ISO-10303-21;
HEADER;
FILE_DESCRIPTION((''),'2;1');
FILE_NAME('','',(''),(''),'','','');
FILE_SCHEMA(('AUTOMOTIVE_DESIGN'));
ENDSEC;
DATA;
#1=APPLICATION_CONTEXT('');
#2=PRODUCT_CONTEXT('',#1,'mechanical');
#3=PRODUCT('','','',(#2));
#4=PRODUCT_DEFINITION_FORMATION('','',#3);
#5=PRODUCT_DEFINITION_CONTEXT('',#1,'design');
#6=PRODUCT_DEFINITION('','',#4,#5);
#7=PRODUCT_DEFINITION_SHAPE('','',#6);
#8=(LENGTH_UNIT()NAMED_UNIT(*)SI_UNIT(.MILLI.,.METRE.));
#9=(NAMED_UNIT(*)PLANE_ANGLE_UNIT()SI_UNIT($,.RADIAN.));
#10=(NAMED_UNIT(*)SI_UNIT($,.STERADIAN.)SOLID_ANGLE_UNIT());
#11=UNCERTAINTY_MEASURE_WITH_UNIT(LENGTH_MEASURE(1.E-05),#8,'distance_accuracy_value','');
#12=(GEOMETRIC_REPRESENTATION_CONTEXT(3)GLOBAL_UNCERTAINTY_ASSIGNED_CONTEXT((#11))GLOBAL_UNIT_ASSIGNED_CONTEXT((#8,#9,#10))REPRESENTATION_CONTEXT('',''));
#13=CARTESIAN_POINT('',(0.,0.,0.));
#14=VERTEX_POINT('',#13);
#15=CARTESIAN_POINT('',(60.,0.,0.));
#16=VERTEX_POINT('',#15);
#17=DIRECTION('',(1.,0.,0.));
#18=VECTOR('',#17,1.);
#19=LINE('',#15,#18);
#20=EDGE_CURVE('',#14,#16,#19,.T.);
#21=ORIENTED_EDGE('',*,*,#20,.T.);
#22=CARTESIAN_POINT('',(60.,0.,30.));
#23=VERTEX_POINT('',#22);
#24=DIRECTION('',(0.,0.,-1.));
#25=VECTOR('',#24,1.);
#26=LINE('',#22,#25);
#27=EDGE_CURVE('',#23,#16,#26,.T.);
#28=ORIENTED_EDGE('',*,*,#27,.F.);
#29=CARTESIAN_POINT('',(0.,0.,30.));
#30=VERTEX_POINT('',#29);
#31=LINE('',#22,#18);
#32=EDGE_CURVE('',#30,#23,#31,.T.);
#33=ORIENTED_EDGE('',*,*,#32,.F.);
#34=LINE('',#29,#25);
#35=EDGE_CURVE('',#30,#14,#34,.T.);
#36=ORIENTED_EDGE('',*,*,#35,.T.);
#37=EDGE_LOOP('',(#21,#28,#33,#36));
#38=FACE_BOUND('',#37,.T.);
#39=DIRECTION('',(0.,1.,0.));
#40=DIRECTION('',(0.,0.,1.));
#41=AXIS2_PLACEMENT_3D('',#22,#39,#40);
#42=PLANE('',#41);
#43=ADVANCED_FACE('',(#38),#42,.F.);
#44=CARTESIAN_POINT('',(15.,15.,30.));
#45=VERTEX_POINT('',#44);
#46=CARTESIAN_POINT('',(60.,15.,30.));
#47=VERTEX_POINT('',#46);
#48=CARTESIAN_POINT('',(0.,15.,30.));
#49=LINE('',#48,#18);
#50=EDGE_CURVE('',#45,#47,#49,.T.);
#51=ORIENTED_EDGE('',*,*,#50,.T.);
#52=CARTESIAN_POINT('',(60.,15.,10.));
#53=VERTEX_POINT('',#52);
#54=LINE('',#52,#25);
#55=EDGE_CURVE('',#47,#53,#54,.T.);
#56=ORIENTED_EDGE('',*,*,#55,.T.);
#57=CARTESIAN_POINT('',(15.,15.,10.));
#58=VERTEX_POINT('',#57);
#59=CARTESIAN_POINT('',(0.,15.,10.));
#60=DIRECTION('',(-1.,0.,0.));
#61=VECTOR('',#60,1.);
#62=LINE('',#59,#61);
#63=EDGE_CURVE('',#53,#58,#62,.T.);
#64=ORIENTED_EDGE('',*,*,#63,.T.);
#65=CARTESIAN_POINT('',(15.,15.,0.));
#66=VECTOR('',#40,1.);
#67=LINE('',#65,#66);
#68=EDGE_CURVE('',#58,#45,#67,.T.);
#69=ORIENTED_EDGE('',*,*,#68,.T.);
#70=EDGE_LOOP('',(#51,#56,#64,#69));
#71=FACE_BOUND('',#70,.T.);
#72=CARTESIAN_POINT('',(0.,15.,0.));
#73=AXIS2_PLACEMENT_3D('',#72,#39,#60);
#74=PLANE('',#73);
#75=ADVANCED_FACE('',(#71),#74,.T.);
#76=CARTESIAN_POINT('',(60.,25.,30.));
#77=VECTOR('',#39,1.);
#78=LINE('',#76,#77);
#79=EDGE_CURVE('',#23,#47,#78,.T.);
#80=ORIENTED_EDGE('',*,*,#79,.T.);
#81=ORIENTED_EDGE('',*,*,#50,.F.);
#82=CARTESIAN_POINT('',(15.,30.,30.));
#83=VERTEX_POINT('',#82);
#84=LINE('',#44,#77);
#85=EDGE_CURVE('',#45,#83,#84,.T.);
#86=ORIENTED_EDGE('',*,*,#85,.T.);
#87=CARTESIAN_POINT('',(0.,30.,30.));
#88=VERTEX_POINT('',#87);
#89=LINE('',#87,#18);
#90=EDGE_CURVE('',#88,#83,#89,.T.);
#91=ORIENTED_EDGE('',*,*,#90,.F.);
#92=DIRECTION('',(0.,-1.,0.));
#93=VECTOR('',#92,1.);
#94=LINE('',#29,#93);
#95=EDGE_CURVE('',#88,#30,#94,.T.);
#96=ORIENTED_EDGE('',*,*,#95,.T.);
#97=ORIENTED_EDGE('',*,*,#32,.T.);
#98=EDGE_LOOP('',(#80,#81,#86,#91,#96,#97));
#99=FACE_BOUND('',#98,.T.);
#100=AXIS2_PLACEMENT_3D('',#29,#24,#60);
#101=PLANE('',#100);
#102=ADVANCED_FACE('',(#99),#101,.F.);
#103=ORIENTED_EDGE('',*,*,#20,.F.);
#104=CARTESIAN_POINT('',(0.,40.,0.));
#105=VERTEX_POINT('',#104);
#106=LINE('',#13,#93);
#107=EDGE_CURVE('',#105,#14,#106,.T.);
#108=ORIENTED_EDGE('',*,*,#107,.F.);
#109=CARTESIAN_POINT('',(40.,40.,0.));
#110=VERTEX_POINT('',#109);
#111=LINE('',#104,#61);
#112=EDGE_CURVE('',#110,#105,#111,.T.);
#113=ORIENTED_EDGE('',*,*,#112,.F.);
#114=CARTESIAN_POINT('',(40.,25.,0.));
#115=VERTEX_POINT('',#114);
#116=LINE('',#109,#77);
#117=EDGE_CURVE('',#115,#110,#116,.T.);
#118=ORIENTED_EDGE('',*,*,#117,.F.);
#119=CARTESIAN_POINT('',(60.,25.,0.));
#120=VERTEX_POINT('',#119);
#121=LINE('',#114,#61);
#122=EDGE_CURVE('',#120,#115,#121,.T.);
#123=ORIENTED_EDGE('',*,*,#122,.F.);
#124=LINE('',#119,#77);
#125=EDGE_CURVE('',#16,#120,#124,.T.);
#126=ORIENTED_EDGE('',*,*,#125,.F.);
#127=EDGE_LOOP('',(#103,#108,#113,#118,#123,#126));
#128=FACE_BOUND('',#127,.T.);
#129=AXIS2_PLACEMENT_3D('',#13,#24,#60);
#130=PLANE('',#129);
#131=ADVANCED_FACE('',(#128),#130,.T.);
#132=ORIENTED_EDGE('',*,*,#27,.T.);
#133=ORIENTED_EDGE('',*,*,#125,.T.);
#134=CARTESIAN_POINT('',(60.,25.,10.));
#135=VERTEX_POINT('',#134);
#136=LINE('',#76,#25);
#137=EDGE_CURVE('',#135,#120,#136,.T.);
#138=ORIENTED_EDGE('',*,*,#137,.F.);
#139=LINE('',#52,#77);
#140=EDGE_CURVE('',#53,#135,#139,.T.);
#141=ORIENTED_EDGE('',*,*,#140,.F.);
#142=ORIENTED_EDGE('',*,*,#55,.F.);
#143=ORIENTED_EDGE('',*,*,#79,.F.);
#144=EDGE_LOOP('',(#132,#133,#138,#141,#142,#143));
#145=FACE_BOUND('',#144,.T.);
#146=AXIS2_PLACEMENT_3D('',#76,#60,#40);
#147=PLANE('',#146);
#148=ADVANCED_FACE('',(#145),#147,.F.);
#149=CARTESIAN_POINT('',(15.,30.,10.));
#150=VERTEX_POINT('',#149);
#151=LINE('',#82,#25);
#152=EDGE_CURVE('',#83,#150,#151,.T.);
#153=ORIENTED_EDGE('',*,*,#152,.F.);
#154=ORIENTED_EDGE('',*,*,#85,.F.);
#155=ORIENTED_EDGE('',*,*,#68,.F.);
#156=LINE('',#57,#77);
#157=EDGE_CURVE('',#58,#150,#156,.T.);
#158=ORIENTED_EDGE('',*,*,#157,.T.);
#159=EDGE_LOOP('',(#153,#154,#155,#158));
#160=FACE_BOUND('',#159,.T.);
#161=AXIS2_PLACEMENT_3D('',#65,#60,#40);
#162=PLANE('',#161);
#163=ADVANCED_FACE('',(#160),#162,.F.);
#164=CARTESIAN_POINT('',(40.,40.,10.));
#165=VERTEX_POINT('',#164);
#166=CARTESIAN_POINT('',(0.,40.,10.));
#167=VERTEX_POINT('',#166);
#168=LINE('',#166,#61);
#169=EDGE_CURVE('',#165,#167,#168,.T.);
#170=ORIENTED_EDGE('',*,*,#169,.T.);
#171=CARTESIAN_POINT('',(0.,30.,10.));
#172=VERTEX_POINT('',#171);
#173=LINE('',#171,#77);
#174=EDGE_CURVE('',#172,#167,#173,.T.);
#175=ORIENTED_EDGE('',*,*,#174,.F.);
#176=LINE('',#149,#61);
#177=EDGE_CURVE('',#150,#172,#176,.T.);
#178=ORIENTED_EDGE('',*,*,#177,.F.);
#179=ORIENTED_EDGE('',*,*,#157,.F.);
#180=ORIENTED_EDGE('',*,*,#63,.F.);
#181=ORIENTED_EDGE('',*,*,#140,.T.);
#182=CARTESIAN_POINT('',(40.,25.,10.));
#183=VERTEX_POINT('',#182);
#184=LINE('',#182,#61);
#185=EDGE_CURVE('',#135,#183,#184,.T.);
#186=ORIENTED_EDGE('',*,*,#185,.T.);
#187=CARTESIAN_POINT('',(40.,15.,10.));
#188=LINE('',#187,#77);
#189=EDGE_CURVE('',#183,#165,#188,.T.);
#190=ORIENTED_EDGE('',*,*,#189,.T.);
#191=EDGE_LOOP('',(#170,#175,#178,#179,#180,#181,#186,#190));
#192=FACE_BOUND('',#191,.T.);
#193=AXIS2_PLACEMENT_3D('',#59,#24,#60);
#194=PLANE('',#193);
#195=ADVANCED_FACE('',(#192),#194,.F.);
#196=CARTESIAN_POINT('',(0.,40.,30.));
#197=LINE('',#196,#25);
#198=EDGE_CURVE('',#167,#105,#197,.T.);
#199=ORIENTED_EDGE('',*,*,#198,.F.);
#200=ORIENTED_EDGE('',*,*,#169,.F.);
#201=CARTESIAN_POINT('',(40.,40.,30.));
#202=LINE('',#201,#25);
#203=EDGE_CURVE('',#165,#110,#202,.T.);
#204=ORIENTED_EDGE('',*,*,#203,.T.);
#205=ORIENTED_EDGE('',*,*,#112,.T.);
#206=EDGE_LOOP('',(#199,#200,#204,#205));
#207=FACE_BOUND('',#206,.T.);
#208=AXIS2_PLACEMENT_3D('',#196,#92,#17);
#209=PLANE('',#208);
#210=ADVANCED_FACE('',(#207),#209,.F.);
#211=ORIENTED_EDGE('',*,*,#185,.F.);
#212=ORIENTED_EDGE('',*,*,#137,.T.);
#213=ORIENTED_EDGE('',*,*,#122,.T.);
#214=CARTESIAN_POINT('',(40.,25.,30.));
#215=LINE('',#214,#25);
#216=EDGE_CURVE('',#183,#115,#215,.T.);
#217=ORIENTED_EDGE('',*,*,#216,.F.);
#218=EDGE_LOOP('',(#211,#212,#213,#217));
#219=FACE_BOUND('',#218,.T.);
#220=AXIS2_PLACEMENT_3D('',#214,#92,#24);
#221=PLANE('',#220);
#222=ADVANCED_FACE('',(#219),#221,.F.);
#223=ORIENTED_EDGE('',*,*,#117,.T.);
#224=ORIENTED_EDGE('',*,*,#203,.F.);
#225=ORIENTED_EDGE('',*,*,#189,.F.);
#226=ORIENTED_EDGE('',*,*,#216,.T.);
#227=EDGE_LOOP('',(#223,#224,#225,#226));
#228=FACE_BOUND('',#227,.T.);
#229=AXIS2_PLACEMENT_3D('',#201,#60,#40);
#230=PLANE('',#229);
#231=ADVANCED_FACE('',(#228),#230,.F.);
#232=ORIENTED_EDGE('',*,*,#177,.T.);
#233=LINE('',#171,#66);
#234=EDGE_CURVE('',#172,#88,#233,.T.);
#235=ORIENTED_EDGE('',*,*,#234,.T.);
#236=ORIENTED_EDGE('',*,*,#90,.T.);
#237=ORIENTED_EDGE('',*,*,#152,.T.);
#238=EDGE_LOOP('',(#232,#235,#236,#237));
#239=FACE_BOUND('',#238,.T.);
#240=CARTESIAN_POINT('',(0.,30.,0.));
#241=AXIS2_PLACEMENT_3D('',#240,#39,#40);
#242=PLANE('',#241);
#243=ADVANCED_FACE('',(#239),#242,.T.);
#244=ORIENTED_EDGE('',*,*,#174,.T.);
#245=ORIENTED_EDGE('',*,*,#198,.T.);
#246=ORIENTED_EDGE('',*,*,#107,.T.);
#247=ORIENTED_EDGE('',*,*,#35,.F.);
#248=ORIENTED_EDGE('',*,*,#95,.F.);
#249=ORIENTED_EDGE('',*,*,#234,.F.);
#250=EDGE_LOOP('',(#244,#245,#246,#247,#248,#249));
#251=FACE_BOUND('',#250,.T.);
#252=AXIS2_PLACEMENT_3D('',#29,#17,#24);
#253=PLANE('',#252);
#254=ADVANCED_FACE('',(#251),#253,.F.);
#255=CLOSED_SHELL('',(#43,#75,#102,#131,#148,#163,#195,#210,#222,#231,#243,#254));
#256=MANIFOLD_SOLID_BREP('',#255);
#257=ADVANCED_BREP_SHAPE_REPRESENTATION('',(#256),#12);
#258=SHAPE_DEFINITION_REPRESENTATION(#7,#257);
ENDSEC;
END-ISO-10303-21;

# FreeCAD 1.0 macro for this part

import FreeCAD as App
import Part
import Sketcher

doc = App.newDocument("Part")
body = doc.addObject("PartDesign::Body", "Body")

# Sketch on XY plane
sketch1 = doc.addObject("Sketcher::SketchObject", "Sketch")
body.addObject(sketch1)
sketch1.AttachmentSupport = (doc.XY_Plane, [""])
sketch1.MapMode = "FlatFace"
sketch1.addGeometry(Part.LineSegment(App.Vector(0, 40, 0), App.Vector(0, 0, 0)), False)
sketch1.addGeometry(Part.LineSegment(App.Vector(0, 0, 0), App.Vector(60, 0, 0)), False)
sketch1.addGeometry(Part.LineSegment(App.Vector(60, 0, 0), App.Vector(60, 25, 0)), False)
sketch1.addGeometry(Part.LineSegment(App.Vector(60, 25, 0), App.Vector(40, 25, 0)), False)
sketch1.addGeometry(Part.LineSegment(App.Vector(40, 25, 0), App.Vector(40, 40, 0)), False)
sketch1.addGeometry(Part.LineSegment(App.Vector(40, 40, 0), App.Vector(0, 40, 0)), False)
sketch1.addConstraint(Sketcher.Constraint("Coincident", 0, 2, 1, 1))
sketch1.addConstraint(Sketcher.Constraint("Coincident", 1, 2, 2, 1))
sketch1.addConstraint(Sketcher.Constraint("Coincident", 2, 2, 3, 1))
sketch1.addConstraint(Sketcher.Constraint("Coincident", 3, 2, 4, 1))
sketch1.addConstraint(Sketcher.Constraint("Coincident", 4, 2, 5, 1))
sketch1.addConstraint(Sketcher.Constraint("Coincident", 5, 2, 0, 1))
sketch1.addConstraint(Sketcher.Constraint("Vertical", 0))
sketch1.addConstraint(Sketcher.Constraint("Horizontal", 1))
sketch1.addConstraint(Sketcher.Constraint("Vertical", 2))
sketch1.addConstraint(Sketcher.Constraint("Horizontal", 3))
sketch1.addConstraint(Sketcher.Constraint("Vertical", 4))
sketch1.addConstraint(Sketcher.Constraint("Horizontal", 5))
sketch1.addConstraint(Sketcher.Constraint("Coincident", 0, 2, -1, 1))
sketch1.addConstraint(Sketcher.Constraint("Equal", 5, 0))
sketch1.addConstraint(Sketcher.Constraint("DistanceX", 1, 1, 1, 2, 60.0))
sketch1.addConstraint(Sketcher.Constraint("DistanceX", 3, 2, 3, 1, 20.0))
sketch1.addConstraint(Sketcher.Constraint("DistanceY", 2, 1, 2, 2, 25.0))
pad1 = doc.addObject("PartDesign::Pad", "Pad")
body.addObject(pad1)
pad1.Profile = sketch1
pad1.Length = 30

# Sketch on XZ plane
sketch2 = doc.addObject("Sketcher::SketchObject", "Sketch001")
body.addObject(sketch2)
sketch2.AttachmentSupport = (doc.XZ_Plane, [""])
sketch2.MapMode = "FlatFace"
sketch2.AttachmentOffset = App.Placement(App.Vector(0, 0, -40), App.Rotation())
sketch2.addGeometry(Part.LineSegment(App.Vector(15, 10, 0), App.Vector(15, 30, 0)), False)
sketch2.addGeometry(Part.LineSegment(App.Vector(15, 30, 0), App.Vector(40, 30, 0)), False)
sketch2.addGeometry(Part.LineSegment(App.Vector(40, 30, 0), App.Vector(40, 10, 0)), False)
sketch2.addGeometry(Part.LineSegment(App.Vector(40, 10, 0), App.Vector(15, 10, 0)), False)
sketch2.addConstraint(Sketcher.Constraint("Coincident", 0, 2, 1, 1))
sketch2.addConstraint(Sketcher.Constraint("Coincident", 1, 2, 2, 1))
sketch2.addConstraint(Sketcher.Constraint("Coincident", 2, 2, 3, 1))
sketch2.addConstraint(Sketcher.Constraint("Coincident", 3, 2, 0, 1))
sketch2.addConstraint(Sketcher.Constraint("Vertical", 0))
sketch2.addConstraint(Sketcher.Constraint("Horizontal", 1))
sketch2.addConstraint(Sketcher.Constraint("Vertical", 2))
sketch2.addConstraint(Sketcher.Constraint("Horizontal", 3))
sketch2.addConstraint(Sketcher.Constraint("DistanceX", 1, 1, 1, 2, 25.0))
sketch2.addConstraint(Sketcher.Constraint("DistanceY", 0, 1, 0, 2, 20.0))
sketch2.addConstraint(Sketcher.Constraint("DistanceX", -1, 1, 0, 2, 15.0))
sketch2.addConstraint(Sketcher.Constraint("DistanceY", -1, 1, 0, 2, 30.0))
pocket1 = doc.addObject("PartDesign::Pocket", "Pocket")
body.addObject(pocket1)
pocket1.Profile = sketch2
pocket1.Length = 25
pocket1.Reversed = True

# Sketch on XZ plane
sketch3 = doc.addObject("Sketcher::SketchObject", "Sketch002")
body.addObject(sketch3)
sketch3.AttachmentSupport = (doc.XZ_Plane, [""])
sketch3.MapMode = "FlatFace"
sketch3.AttachmentOffset = App.Placement(App.Vector(0, 0, -25), App.Rotation())
sketch3.addGeometry(Part.LineSegment(App.Vector(40, 10, 0), App.Vector(40, 30, 0)), False)
sketch3.addGeometry(Part.LineSegment(App.Vector(40, 30, 0), App.Vector(60, 30, 0)), False)
sketch3.addGeometry(Part.LineSegment(App.Vector(60, 30, 0), App.Vector(60, 10, 0)), False)
sketch3.addGeometry(Part.LineSegment(App.Vector(60, 10, 0), App.Vector(40, 10, 0)), False)
sketch3.addConstraint(Sketcher.Constraint("Coincident", 0, 2, 1, 1))
sketch3.addConstraint(Sketcher.Constraint("Coincident", 1, 2, 2, 1))
sketch3.addConstraint(Sketcher.Constraint("Coincident", 2, 2, 3, 1))
sketch3.addConstraint(Sketcher.Constraint("Coincident", 3, 2, 0, 1))
sketch3.addConstraint(Sketcher.Constraint("Vertical", 0))
sketch3.addConstraint(Sketcher.Constraint("Horizontal", 1))
sketch3.addConstraint(Sketcher.Constraint("Vertical", 2))
sketch3.addConstraint(Sketcher.Constraint("Horizontal", 3))
sketch3.addConstraint(Sketcher.Constraint("Equal", 3, 0))
sketch3.addConstraint(Sketcher.Constraint("DistanceX", 1, 1, 1, 2, 20.0))
sketch3.addConstraint(Sketcher.Constraint("DistanceX", -1, 1, 0, 2, 40.0))
sketch3.addConstraint(Sketcher.Constraint("DistanceY", -1, 1, 0, 2, 30.0))
pocket2 = doc.addObject("PartDesign::Pocket", "Pocket001")
body.addObject(pocket2)
pocket2.Profile = sketch3
pocket2.Length = 10
pocket2.Reversed = True

# Sketch on XZ plane
sketch4 = doc.addObject("Sketcher::SketchObject", "Sketch003")
body.addObject(sketch4)
sketch4.AttachmentSupport = (doc.XZ_Plane, [""])
sketch4.MapMode = "FlatFace"
sketch4.AttachmentOffset = App.Placement(App.Vector(0, 0, -40), App.Rotation())
sketch4.addGeometry(Part.LineSegment(App.Vector(0, 10, 0), App.Vector(0, 30, 0)), False)
sketch4.addGeometry(Part.LineSegment(App.Vector(0, 30, 0), App.Vector(15, 30, 0)), False)
sketch4.addGeometry(Part.LineSegment(App.Vector(15, 30, 0), App.Vector(15, 10, 0)), False)
sketch4.addGeometry(Part.LineSegment(App.Vector(15, 10, 0), App.Vector(0, 10, 0)), False)
sketch4.addConstraint(Sketcher.Constraint("Coincident", 0, 2, 1, 1))
sketch4.addConstraint(Sketcher.Constraint("Coincident", 1, 2, 2, 1))
sketch4.addConstraint(Sketcher.Constraint("Coincident", 2, 2, 3, 1))
sketch4.addConstraint(Sketcher.Constraint("Coincident", 3, 2, 0, 1))
sketch4.addConstraint(Sketcher.Constraint("Vertical", 0))
sketch4.addConstraint(Sketcher.Constraint("Horizontal", 1))
sketch4.addConstraint(Sketcher.Constraint("Vertical", 2))
sketch4.addConstraint(Sketcher.Constraint("Horizontal", 3))
sketch4.addConstraint(Sketcher.Constraint("PointOnObject", 0, 2, -2))
sketch4.addConstraint(Sketcher.Constraint("DistanceX", 1, 1, 1, 2, 15.0))
sketch4.addConstraint(Sketcher.Constraint("DistanceY", 0, 1, 0, 2, 20.0))
sketch4.addConstraint(Sketcher.Constraint("DistanceY", -1, 1, 0, 2, 30.0))
pocket3 = doc.addObject("PartDesign::Pocket", "Pocket002")
body.addObject(pocket3)
pocket3.Profile = sketch4
pocket3.Length = 10
pocket3.Reversed = True

doc.recompute()
